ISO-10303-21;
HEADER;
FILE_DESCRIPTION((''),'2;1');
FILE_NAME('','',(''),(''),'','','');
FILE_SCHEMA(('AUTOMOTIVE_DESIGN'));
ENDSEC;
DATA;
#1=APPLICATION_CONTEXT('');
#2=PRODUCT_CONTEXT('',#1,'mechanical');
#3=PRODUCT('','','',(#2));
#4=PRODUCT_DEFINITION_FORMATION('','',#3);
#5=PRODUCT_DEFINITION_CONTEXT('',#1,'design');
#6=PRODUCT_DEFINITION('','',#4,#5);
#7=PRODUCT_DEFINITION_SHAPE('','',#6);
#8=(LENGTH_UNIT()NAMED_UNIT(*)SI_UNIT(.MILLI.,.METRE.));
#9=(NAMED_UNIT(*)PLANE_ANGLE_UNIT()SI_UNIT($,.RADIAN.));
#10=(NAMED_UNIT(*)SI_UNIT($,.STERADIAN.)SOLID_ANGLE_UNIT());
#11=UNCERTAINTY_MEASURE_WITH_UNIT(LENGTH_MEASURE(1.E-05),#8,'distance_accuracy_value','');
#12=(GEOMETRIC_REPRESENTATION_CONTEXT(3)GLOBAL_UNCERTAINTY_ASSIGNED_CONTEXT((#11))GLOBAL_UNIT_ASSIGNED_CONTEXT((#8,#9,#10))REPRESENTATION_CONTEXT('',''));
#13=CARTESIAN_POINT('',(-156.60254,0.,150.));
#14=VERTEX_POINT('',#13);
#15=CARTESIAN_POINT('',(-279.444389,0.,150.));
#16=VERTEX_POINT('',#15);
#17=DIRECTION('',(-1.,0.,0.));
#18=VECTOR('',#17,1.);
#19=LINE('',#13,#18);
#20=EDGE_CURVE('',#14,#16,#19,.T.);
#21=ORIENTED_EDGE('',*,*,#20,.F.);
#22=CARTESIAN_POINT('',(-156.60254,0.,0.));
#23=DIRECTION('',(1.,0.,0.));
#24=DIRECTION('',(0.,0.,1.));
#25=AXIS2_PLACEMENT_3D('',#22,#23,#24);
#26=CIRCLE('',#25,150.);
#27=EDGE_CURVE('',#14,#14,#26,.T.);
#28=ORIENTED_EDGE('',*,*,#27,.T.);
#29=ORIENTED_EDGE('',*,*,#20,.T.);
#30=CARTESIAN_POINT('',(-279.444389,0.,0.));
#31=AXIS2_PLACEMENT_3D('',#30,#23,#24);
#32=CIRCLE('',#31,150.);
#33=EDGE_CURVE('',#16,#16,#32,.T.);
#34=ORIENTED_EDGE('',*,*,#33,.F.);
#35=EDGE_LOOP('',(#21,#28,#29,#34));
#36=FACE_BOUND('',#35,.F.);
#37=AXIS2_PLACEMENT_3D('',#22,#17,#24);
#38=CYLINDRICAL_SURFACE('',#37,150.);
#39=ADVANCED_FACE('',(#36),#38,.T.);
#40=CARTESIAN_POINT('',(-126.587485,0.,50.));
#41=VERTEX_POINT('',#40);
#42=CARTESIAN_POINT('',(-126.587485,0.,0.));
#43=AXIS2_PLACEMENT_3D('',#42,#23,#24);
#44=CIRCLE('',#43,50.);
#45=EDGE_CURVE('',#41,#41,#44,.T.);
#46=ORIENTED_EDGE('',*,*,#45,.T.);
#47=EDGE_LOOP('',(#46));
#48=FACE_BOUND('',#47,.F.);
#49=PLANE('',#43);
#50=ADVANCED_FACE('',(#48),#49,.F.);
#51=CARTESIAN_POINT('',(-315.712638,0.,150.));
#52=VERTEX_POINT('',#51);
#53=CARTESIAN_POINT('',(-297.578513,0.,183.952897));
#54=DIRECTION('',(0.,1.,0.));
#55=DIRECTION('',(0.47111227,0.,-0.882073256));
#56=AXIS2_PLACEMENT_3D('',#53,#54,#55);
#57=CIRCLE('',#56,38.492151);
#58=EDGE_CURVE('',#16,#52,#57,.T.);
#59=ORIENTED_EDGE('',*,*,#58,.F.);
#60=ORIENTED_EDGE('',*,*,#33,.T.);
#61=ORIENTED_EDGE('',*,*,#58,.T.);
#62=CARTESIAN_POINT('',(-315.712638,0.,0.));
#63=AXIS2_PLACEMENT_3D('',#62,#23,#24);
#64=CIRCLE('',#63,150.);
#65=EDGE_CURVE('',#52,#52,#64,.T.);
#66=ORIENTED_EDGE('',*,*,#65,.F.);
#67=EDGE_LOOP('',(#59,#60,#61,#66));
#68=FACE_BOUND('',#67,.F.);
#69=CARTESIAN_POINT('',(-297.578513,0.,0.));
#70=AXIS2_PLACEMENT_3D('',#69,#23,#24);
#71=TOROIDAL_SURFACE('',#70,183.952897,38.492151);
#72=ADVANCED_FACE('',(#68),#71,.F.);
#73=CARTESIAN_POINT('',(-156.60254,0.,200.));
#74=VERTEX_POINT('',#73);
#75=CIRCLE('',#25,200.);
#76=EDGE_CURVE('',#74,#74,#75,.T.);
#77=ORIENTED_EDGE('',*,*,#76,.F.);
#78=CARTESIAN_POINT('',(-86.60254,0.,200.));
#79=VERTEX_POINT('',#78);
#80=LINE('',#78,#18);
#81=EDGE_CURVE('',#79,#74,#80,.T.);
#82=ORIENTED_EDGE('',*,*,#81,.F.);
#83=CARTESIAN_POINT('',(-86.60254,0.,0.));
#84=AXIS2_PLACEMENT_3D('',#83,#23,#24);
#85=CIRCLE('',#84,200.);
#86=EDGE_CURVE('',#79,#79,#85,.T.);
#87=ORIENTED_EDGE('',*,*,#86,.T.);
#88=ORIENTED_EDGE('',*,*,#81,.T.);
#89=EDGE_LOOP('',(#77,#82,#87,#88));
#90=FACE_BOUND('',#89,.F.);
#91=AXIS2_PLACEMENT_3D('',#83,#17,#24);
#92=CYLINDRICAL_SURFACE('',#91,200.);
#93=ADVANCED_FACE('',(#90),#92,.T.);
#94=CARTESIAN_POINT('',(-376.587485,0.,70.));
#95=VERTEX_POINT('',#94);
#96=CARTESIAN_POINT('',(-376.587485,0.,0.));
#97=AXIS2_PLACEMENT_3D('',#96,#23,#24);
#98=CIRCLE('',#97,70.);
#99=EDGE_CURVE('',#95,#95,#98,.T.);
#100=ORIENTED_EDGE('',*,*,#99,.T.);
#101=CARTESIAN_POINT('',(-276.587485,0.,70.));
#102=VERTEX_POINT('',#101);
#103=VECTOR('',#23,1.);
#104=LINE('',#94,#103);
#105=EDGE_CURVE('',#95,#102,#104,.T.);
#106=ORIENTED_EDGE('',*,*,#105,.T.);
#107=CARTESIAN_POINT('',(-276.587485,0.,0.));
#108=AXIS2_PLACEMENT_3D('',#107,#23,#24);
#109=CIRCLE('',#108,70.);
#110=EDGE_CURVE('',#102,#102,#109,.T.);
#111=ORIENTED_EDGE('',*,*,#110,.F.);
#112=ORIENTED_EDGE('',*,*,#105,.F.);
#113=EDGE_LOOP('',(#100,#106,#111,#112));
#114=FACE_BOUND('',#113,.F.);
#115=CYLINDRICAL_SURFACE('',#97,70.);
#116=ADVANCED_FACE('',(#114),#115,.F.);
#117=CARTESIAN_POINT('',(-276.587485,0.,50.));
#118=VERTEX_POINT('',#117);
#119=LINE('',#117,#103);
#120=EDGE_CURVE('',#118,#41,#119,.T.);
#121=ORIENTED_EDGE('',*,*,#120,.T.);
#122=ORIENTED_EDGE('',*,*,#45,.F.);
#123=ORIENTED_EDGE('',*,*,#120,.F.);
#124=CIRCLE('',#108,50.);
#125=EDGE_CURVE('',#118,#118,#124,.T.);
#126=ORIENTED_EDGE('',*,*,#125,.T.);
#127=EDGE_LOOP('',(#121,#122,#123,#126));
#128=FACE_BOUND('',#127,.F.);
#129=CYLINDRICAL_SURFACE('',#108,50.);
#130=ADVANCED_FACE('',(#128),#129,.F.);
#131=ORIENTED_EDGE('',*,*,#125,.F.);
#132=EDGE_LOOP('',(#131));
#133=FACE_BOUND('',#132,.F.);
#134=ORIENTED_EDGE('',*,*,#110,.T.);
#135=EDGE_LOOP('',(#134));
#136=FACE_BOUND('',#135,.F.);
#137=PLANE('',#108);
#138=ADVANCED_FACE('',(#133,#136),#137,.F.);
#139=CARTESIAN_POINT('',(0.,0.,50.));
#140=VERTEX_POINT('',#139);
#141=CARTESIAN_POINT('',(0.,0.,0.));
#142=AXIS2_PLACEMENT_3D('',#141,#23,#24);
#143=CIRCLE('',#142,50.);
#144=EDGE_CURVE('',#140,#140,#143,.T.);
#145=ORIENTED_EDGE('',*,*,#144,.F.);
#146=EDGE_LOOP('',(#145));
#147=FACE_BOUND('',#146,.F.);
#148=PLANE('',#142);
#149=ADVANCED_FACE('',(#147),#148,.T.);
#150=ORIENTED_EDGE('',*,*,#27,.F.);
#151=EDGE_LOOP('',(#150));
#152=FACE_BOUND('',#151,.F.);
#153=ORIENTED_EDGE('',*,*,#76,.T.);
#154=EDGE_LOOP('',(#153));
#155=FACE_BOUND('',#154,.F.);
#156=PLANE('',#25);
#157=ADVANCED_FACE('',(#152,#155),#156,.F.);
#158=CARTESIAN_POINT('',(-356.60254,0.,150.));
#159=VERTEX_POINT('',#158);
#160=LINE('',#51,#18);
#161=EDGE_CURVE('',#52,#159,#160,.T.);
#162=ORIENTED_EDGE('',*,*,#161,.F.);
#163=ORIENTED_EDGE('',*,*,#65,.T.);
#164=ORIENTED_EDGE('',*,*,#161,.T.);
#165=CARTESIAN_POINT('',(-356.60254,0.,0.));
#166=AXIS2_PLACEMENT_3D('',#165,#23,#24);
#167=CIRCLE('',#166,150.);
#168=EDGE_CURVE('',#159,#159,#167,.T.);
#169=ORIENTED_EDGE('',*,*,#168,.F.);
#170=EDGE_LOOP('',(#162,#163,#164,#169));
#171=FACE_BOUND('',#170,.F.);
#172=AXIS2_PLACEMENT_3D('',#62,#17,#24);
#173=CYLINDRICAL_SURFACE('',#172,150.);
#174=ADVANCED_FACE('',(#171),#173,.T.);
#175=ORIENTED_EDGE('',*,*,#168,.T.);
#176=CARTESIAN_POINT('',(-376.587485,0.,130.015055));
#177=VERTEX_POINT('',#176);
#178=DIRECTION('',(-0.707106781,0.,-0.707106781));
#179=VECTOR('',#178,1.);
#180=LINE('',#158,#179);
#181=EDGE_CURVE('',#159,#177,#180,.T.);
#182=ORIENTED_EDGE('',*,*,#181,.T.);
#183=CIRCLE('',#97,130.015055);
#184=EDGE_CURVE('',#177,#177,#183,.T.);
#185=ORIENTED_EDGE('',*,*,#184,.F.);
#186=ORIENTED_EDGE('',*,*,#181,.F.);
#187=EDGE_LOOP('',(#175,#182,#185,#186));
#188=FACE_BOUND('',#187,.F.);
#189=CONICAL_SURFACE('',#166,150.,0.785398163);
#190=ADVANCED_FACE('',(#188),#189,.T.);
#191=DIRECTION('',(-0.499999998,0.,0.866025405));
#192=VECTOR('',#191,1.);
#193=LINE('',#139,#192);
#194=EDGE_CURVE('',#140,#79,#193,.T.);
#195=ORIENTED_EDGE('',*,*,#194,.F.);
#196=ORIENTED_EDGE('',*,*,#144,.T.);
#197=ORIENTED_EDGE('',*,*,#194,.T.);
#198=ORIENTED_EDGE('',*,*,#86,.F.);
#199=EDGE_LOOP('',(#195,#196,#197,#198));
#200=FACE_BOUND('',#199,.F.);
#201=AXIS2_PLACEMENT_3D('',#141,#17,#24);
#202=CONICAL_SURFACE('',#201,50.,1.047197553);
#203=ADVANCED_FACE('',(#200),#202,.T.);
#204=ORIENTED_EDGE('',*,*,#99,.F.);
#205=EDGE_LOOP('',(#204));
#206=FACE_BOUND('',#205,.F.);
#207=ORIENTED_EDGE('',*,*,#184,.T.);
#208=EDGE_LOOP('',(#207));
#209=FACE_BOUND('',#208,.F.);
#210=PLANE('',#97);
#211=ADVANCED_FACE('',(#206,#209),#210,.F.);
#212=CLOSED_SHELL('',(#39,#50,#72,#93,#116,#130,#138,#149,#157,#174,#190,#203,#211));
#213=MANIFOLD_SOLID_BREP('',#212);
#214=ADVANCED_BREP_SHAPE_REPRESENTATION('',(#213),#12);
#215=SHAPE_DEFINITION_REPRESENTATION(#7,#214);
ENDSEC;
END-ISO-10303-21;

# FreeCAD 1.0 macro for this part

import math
import FreeCAD as App
import Part
import Sketcher
Q = App.Units.Quantity

doc = App.newDocument("Part")
body = doc.addObject("PartDesign::Body", "Body")

# Sketch on XZ plane
sketch1 = body.newObject("Sketcher::SketchObject", "Sketch")
sketch1.AttachmentSupport = (doc.getObject("XZ_Plane"), [""])
sketch1.MapMode = "FlatFace"
sketch1.addGeometry([
    Part.LineSegment(App.Vector(-127, 0, 0), App.Vector(0, 0, 0)),  # 0
    Part.LineSegment(App.Vector(0, 0, 0), App.Vector(0, 50, 0)),  # 1
    Part.LineSegment(App.Vector(0, 50, 0), App.Vector(-87, 200, 0)),  # 2
    Part.LineSegment(App.Vector(-87, 200, 0), App.Vector(-157, 200, 0)),  # 3
    Part.LineSegment(App.Vector(-157, 200, 0), App.Vector(-157, 150, 0)),  # 4
    Part.LineSegment(App.Vector(-157, 150, 0), App.Vector(-279, 150, 0)),  # 5
    Part.ArcOfCircle(Part.Circle(App.Vector(-298, 184, 0), App.Vector(0, 0, 1), 38), math.radians(-118), math.radians(-62)),  # 6
    Part.LineSegment(App.Vector(-316, 150, 0), App.Vector(-357, 150, 0)),  # 7
    Part.LineSegment(App.Vector(-357, 150, 0), App.Vector(-377, 130, 0)),  # 8
    Part.LineSegment(App.Vector(-377, 130, 0), App.Vector(-377, 70, 0)),  # 9
    Part.LineSegment(App.Vector(-377, 70, 0), App.Vector(-277, 70, 0)),  # 10
    Part.LineSegment(App.Vector(-277, 70, 0), App.Vector(-277, 50, 0)),  # 11
    Part.LineSegment(App.Vector(-277, 50, 0), App.Vector(-127, 50, 0)),  # 12
    Part.LineSegment(App.Vector(-127, 50, 0), App.Vector(-127, 0, 0)),  # 13
], False)
sketch1.addConstraint([
    Sketcher.Constraint("Coincident", 0, 2, 1, 1),
    Sketcher.Constraint("Coincident", 1, 2, 2, 1),
    Sketcher.Constraint("Coincident", 2, 2, 3, 1),
    Sketcher.Constraint("Coincident", 3, 2, 4, 1),
    Sketcher.Constraint("Coincident", 4, 2, 5, 1),
    Sketcher.Constraint("Coincident", 5, 2, 6, 2),
    Sketcher.Constraint("Coincident", 6, 1, 7, 1),
    Sketcher.Constraint("Coincident", 7, 2, 8, 1),
    Sketcher.Constraint("Coincident", 8, 2, 9, 1),
    Sketcher.Constraint("Coincident", 9, 2, 10, 1),
    Sketcher.Constraint("Coincident", 10, 2, 11, 1),
    Sketcher.Constraint("Coincident", 11, 2, 12, 1),
    Sketcher.Constraint("Coincident", 12, 2, 13, 1),
    Sketcher.Constraint("Coincident", 13, 2, 0, 1),
    Sketcher.Constraint("Horizontal", 0),
    Sketcher.Constraint("Vertical", 1),
    Sketcher.Constraint("Horizontal", 3),
    Sketcher.Constraint("Vertical", 4),
    Sketcher.Constraint("Horizontal", 5),
    Sketcher.Constraint("Horizontal", 7),
    Sketcher.Constraint("Vertical", 9),
    Sketcher.Constraint("Horizontal", 10),
    Sketcher.Constraint("Vertical", 11),
    Sketcher.Constraint("Horizontal", 12),
    Sketcher.Constraint("Vertical", 13),
    Sketcher.Constraint("Coincident", 0, 2, -1, 1),
    Sketcher.Constraint("Horizontal", 5, 2, 6, 1),
    Sketcher.Constraint("Horizontal", 1, 2, 11, 2),
    Sketcher.Constraint("Equal", 1, 4),
    Sketcher.Constraint("DistanceX", 3, 2, 3, 1, 70.0),
    Sketcher.Constraint("DistanceX", 10, 1, 10, 2, 100.0),
    Sketcher.Constraint("DistanceX", 12, 1, 12, 2, 150.0),
    Sketcher.Constraint("DistanceY", 1, 1, 1, 2, 50.0),
    Sketcher.Constraint("DistanceY", 11, 2, 11, 1, 20.0),
    Sketcher.Constraint("Angle", 2, Q("120 deg")),
    Sketcher.Constraint("Angle", 8, Q("-135 deg")),
    Sketcher.Constraint("DistanceY", -1, 1, 2, 2, 200.0),
    Sketcher.Constraint("DistanceX", 7, 2, 4, 2, 200.0),
    Sketcher.Constraint("Radius", 6, 38.492151),
    Sketcher.Constraint("DistanceX", 7, 2, 7, 1, 40.889902),
    Sketcher.Constraint("DistanceX", 5, 2, 5, 1, 122.841849),
    Sketcher.Constraint("Distance", 8, 28.26298),
])
revolution = body.newObject("PartDesign::Revolution", "Revolution")
revolution.Profile = sketch1
revolution.ReferenceAxis = (sketch1, ["H_Axis"])
revolution.Angle = 360

doc.recompute()
